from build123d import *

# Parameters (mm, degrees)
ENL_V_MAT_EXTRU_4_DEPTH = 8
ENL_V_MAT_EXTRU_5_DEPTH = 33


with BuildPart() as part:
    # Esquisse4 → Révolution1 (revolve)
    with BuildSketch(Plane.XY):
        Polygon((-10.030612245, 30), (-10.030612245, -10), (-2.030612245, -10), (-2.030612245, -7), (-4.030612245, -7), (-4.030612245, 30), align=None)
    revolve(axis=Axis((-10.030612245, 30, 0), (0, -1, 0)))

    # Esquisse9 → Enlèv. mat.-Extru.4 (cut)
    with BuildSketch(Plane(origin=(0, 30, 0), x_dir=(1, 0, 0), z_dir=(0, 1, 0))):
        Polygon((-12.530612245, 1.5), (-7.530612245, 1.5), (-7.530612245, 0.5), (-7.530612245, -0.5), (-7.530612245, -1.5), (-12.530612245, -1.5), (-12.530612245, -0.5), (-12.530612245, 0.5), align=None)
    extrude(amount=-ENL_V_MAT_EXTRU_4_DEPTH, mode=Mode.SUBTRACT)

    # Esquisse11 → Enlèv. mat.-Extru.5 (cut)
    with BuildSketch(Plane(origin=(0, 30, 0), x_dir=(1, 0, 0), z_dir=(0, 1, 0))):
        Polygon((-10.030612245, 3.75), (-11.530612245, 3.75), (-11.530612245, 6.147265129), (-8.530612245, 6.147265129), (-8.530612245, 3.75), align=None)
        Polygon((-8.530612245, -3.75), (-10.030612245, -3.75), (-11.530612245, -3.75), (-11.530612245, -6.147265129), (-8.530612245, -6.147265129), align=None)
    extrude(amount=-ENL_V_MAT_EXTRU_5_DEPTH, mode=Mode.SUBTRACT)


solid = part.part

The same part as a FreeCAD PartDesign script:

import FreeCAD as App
import Part
import Sketcher

V = App.Vector
Q = App.Units.Quantity

doc = App.newDocument("Part")
body = doc.addObject("PartDesign::Body", "Body")

# Sketch on XY plane
sketch1 = body.newObject("Sketcher::SketchObject", "Sketch")
sketch1.AttachmentSupport = (doc.getObject("XY_Plane"), [""])
sketch1.MapMode = "FlatFace"
sketch1.addGeometry(Part.LineSegment(V(-10, 30, 0), V(-10, -10, 0)), False)
sketch1.addGeometry(Part.LineSegment(V(-10, -10, 0), V(-2, -10, 0)), False)
sketch1.addGeometry(Part.LineSegment(V(-2, -10, 0), V(-2, -7, 0)), False)
sketch1.addGeometry(Part.LineSegment(V(-2, -7, 0), V(-4, -7, 0)), False)
sketch1.addGeometry(Part.LineSegment(V(-4, -7, 0), V(-4, 30, 0)), False)
sketch1.addGeometry(Part.LineSegment(V(-4, 30, 0), V(-10, 30, 0)), False)
sketch1.addGeometry(Part.LineSegment(V(-10, 30, 0), V(-10, -10, 0)), True)  # axis
sketch1.addConstraint(Sketcher.Constraint("Coincident", 0, 2, 1, 1))
sketch1.addConstraint(Sketcher.Constraint("Coincident", 1, 2, 2, 1))
sketch1.addConstraint(Sketcher.Constraint("Coincident", 2, 2, 3, 1))
sketch1.addConstraint(Sketcher.Constraint("Coincident", 3, 2, 4, 1))
sketch1.addConstraint(Sketcher.Constraint("Coincident", 4, 2, 5, 1))
sketch1.addConstraint(Sketcher.Constraint("Coincident", 5, 2, 0, 1))
sketch1.addConstraint(Sketcher.Constraint("Vertical", 0))
sketch1.addConstraint(Sketcher.Constraint("Horizontal", 1))
sketch1.addConstraint(Sketcher.Constraint("Vertical", 2))
sketch1.addConstraint(Sketcher.Constraint("Horizontal", 3))
sketch1.addConstraint(Sketcher.Constraint("Vertical", 4))
sketch1.addConstraint(Sketcher.Constraint("Horizontal", 5))
sketch1.addConstraint(Sketcher.Constraint("Vertical", 6))
sketch1.addConstraint(Sketcher.Constraint("Coincident", 6, 1, 5, 2))
sketch1.addConstraint(Sketcher.Constraint("Horizontal", 1, 2, 6, 2))
sketch1.addConstraint(Sketcher.Constraint("DistanceX", 1, 1, 1, 2, Q("8 mm")))
sketch1.addConstraint(Sketcher.Constraint("DistanceX", 3, 2, 3, 1, Q("2 mm")))
sketch1.addConstraint(Sketcher.Constraint("DistanceY", 0, 2, 0, 1, Q("40 mm")))
sketch1.addConstraint(Sketcher.Constraint("DistanceY", 2, 1, 2, 2, Q("3 mm")))
sketch1.addConstraint(Sketcher.Constraint("DistanceY", 0, 2, -1, 1, Q("10 mm")))
sketch1.addConstraint(Sketcher.Constraint("DistanceX", 0, 2, -1, 1, Q("10.030612 mm")))
revolution = body.newObject("PartDesign::Revolution", "Revolution")
revolution.Profile = sketch1
revolution.ReferenceAxis = (sketch1, ["Axis0"])
revolution.Angle = 360

# Sketch on XZ plane
sketch2 = body.newObject("Sketcher::SketchObject", "Sketch001")
sketch2.AttachmentSupport = (doc.getObject("XZ_Plane"), [""])
sketch2.MapMode = "FlatFace"
sketch2.AttachmentOffset = App.Placement(V(0, 0, -30), App.Rotation())
sketch2.addGeometry(Part.LineSegment(V(-7.5, -1.5, 0), V(-12.5, -1.5, 0)), False)
sketch2.addGeometry(Part.LineSegment(V(-12.5, -1.5, 0), V(-12.5, 1.5, 0)), False)
sketch2.addGeometry(Part.LineSegment(V(-12.5, 1.5, 0), V(-7.5, 1.5, 0)), False)
sketch2.addGeometry(Part.LineSegment(V(-7.5, 1.5, 0), V(-7.5, -1.5, 0)), False)
sketch2.addConstraint(Sketcher.Constraint("Coincident", 0, 2, 1, 1))
sketch2.addConstraint(Sketcher.Constraint("Coincident", 1, 2, 2, 1))
sketch2.addConstraint(Sketcher.Constraint("Coincident", 2, 2, 3, 1))
sketch2.addConstraint(Sketcher.Constraint("Coincident", 3, 2, 0, 1))
sketch2.addConstraint(Sketcher.Constraint("Horizontal", 0))
sketch2.addConstraint(Sketcher.Constraint("Vertical", 1))
sketch2.addConstraint(Sketcher.Constraint("Horizontal", 2))
sketch2.addConstraint(Sketcher.Constraint("Vertical", 3))
sketch2.addConstraint(Sketcher.Constraint("DistanceX", 0, 2, 0, 1, Q("5 mm")))
sketch2.addConstraint(Sketcher.Constraint("DistanceY", 1, 1, 1, 2, Q("3 mm")))
sketch2.addConstraint(Sketcher.Constraint("DistanceY", 0, 2, -1, 1, Q("1.5 mm")))
sketch2.addConstraint(Sketcher.Constraint("DistanceX", 0, 2, -1, 1, Q("12.530612 mm")))
pocket1 = body.newObject("PartDesign::Pocket", "Pocket")
pocket1.Profile = sketch2
pocket1.Length = 8
pocket1.Reversed = True

# Sketch on XZ plane
sketch3 = body.newObject("Sketcher::SketchObject", "Sketch002")
sketch3.AttachmentSupport = (doc.getObject("XZ_Plane"), [""])
sketch3.MapMode = "FlatFace"
sketch3.AttachmentOffset = App.Placement(V(0, 0, -30), App.Rotation())
sketch3.addGeometry(Part.LineSegment(V(-11.5, -3.8, 0), V(-8.5, -3.8, 0)), False)
sketch3.addGeometry(Part.LineSegment(V(-8.5, -3.8, 0), V(-8.5, -6.1, 0)), False)
sketch3.addGeometry(Part.LineSegment(V(-8.5, -6.1, 0), V(-11.5, -6.1, 0)), False)
sketch3.addGeometry(Part.LineSegment(V(-11.5, -6.1, 0), V(-11.5, -3.8, 0)), False)
sketch3.addGeometry(Part.LineSegment(V(-8.5, 3.8, 0), V(-11.5, 3.8, 0)), False)
sketch3.addGeometry(Part.LineSegment(V(-11.5, 3.8, 0), V(-11.5, 6.1, 0)), False)
sketch3.addGeometry(Part.LineSegment(V(-11.5, 6.1, 0), V(-8.5, 6.1, 0)), False)
sketch3.addGeometry(Part.LineSegment(V(-8.5, 6.1, 0), V(-8.5, 3.8, 0)), False)
sketch3.addConstraint(Sketcher.Constraint("Coincident", 0, 2, 1, 1))
sketch3.addConstraint(Sketcher.Constraint("Coincident", 1, 2, 2, 1))
sketch3.addConstraint(Sketcher.Constraint("Coincident", 2, 2, 3, 1))
sketch3.addConstraint(Sketcher.Constraint("Coincident", 3, 2, 0, 1))
sketch3.addConstraint(Sketcher.Constraint("Coincident", 4, 2, 5, 1))
sketch3.addConstraint(Sketcher.Constraint("Coincident", 5, 2, 6, 1))
sketch3.addConstraint(Sketcher.Constraint("Coincident", 6, 2, 7, 1))
sketch3.addConstraint(Sketcher.Constraint("Coincident", 7, 2, 4, 1))
sketch3.addConstraint(Sketcher.Constraint("Horizontal", 0))
sketch3.addConstraint(Sketcher.Constraint("Vertical", 1))
sketch3.addConstraint(Sketcher.Constraint("Horizontal", 2))
sketch3.addConstraint(Sketcher.Constraint("Vertical", 3))
sketch3.addConstraint(Sketcher.Constraint("Horizontal", 4))
sketch3.addConstraint(Sketcher.Constraint("Vertical", 5))
sketch3.addConstraint(Sketcher.Constraint("Horizontal", 6))
sketch3.addConstraint(Sketcher.Constraint("Vertical", 7))
sketch3.addConstraint(Sketcher.Constraint("Symmetric", 3, 2, 4, 2, -1))
sketch3.addConstraint(Sketcher.Constraint("Symmetric", 1, 2, 6, 2, -1))
sketch3.addConstraint(Sketcher.Constraint("DistanceX", 0, 1, 0, 2, Q("3 mm")))
sketch3.addConstraint(Sketcher.Constraint("DistanceY", 3, 2, 4, 2, Q("7.5 mm")))
sketch3.addConstraint(Sketcher.Constraint("DistanceY", 1, 2, 1, 1, Q("2.397265 mm")))
sketch3.addConstraint(Sketcher.Constraint("DistanceX", 0, 2, -1, 1, Q("8.530612 mm")))
pocket2 = body.newObject("PartDesign::Pocket", "Pocket001")
pocket2.Profile = sketch3
pocket2.Length = 33
pocket2.Reversed = True

doc.recompute()
